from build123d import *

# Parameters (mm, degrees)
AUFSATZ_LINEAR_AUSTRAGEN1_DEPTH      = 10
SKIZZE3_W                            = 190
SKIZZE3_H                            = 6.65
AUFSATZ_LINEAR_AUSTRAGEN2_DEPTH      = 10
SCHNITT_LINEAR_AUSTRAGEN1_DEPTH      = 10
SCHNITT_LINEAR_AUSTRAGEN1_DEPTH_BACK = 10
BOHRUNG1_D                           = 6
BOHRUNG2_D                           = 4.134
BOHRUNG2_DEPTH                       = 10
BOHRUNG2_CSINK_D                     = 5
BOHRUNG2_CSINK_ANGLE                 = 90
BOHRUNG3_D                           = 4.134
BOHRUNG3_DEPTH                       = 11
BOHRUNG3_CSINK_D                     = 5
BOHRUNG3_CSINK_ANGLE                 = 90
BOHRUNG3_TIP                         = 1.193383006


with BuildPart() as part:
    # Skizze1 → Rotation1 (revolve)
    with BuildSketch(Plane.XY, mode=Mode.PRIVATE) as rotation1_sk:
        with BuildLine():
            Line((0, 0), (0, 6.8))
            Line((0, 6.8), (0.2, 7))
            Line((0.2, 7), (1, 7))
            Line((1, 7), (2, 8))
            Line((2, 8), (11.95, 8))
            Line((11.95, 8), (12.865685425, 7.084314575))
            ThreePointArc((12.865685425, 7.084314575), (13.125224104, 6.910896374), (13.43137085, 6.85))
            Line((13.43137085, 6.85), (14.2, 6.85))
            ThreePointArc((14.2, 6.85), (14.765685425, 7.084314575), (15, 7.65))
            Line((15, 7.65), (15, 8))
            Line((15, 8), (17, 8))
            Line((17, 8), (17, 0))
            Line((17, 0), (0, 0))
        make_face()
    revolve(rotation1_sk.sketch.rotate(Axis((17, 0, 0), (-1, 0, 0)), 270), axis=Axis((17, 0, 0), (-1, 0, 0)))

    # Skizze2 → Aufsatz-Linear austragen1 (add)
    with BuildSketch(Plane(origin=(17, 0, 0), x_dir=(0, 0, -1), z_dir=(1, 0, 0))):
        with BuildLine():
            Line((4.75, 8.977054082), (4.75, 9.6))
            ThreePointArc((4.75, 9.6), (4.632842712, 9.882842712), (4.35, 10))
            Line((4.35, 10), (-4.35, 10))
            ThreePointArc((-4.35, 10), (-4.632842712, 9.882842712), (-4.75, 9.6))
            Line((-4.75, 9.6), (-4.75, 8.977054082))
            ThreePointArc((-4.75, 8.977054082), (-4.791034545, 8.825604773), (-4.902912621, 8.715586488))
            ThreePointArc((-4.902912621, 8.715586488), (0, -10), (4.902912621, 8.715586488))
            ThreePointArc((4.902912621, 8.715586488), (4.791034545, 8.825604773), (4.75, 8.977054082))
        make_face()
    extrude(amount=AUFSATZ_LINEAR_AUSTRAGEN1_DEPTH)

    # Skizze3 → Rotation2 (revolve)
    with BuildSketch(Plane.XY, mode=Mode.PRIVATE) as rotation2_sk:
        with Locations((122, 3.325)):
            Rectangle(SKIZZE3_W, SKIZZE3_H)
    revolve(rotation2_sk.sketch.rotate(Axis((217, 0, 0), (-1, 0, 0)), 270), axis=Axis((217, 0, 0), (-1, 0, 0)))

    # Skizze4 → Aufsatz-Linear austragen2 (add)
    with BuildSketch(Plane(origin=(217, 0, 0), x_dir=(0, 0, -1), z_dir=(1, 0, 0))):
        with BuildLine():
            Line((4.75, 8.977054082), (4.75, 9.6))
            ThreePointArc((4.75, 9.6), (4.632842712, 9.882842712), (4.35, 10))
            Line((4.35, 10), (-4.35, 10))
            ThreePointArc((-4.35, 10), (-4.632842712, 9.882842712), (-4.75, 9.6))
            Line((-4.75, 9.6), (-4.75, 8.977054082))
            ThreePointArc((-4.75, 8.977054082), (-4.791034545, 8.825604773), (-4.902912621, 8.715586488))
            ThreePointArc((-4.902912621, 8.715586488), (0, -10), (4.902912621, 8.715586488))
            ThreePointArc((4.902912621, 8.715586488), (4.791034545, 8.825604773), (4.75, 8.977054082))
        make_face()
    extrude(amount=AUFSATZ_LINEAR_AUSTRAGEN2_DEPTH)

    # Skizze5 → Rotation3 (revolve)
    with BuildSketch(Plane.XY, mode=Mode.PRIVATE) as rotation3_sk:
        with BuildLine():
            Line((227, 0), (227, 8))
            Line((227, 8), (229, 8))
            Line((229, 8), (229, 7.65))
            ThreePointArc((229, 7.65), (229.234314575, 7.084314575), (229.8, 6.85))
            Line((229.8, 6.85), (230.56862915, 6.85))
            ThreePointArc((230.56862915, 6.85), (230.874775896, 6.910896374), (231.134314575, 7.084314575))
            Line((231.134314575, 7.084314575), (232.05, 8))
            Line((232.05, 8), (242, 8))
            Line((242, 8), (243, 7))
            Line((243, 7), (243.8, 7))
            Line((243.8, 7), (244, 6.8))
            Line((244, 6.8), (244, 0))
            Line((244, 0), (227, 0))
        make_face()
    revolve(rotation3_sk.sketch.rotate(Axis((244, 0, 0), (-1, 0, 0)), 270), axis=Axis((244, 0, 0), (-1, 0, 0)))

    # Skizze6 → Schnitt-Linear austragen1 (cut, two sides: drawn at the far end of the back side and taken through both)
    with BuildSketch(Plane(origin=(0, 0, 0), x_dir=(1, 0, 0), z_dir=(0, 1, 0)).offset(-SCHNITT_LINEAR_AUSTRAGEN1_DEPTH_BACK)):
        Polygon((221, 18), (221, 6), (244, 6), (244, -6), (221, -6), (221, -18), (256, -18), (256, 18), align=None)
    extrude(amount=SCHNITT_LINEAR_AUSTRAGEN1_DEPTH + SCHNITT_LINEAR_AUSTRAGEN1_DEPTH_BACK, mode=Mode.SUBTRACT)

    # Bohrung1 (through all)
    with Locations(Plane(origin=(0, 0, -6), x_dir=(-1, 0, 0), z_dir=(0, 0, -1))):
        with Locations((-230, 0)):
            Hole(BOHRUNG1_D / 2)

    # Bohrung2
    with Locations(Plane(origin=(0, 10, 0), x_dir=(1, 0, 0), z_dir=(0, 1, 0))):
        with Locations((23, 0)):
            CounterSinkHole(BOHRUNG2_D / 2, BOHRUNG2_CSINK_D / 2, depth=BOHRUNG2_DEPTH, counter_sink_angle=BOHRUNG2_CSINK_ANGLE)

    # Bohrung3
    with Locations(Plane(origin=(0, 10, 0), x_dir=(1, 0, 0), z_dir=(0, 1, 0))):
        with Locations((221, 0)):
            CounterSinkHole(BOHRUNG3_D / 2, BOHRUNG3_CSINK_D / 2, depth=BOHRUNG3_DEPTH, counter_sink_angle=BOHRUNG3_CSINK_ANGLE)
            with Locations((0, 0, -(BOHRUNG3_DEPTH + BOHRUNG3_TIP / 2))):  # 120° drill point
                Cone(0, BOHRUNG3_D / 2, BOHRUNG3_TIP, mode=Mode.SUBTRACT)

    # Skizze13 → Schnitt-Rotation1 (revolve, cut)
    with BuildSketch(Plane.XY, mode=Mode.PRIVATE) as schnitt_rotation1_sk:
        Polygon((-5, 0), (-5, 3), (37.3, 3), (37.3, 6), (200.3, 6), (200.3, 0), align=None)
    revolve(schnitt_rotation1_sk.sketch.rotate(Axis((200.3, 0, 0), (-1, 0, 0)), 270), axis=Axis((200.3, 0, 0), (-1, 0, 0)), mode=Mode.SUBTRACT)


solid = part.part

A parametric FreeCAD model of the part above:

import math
import FreeCAD as App
import Part
import Sketcher
Q = App.Units.Quantity


def add_polygon(sketch, points):
    """Adds a closed chain of lines whose ends are joined by coincident constraints."""
    first, n = sketch.GeometryCount, len(points)
    for a, b in zip(points, points[1:] + points[:1]):
        sketch.addGeometry(Part.LineSegment(App.Vector(*a, 0), App.Vector(*b, 0)), False)
    for i in range(n):
        sketch.addConstraint(Sketcher.Constraint("Coincident", first + i, 2, first + (i + 1) % n, 1))

doc = App.newDocument("Part")
body = doc.addObject("PartDesign::Body", "Body")

# Sketch on XY plane
sketch1 = doc.addObject("Sketcher::SketchObject", "Sketch")
body.addObject(sketch1)
sketch1.AttachmentSupport = (doc.XY_Plane, [""])
sketch1.MapMode = "FlatFace"
sketch1.addGeometry([
    Part.LineSegment(App.Vector(0, 6.8, 0), App.Vector(0, 0, 0)),  # 0
    Part.LineSegment(App.Vector(0, 0, 0), App.Vector(17, 0, 0)),  # 1
    Part.LineSegment(App.Vector(17, 0, 0), App.Vector(17, 8, 0)),  # 2
    Part.LineSegment(App.Vector(17, 8, 0), App.Vector(15, 8, 0)),  # 3
    Part.LineSegment(App.Vector(15, 8, 0), App.Vector(15, 7.65, 0)),  # 4
    Part.ArcOfCircle(Part.Circle(App.Vector(14.2, 7.65, 0), App.Vector(0, 0, 1), 0.8), math.radians(-90), math.radians(0)),  # 5
    Part.LineSegment(App.Vector(14.2, 6.85, 0), App.Vector(13.43, 6.85, 0)),  # 6
    Part.ArcOfCircle(Part.Circle(App.Vector(13.43, 7.65, 0), App.Vector(0, 0, 1), 0.8), math.radians(-135), math.radians(-90)),  # 7
    Part.LineSegment(App.Vector(12.87, 7.08, 0), App.Vector(11.95, 8, 0)),  # 8
    Part.LineSegment(App.Vector(11.95, 8, 0), App.Vector(2, 8, 0)),  # 9
    Part.LineSegment(App.Vector(2, 8, 0), App.Vector(1, 7, 0)),  # 10
    Part.LineSegment(App.Vector(1, 7, 0), App.Vector(0.2, 7, 0)),  # 11
    Part.LineSegment(App.Vector(0.2, 7, 0), App.Vector(0, 6.8, 0)),  # 12
], False)
sketch1.addConstraint([
    Sketcher.Constraint("Coincident", 0, 2, 1, 1),
    Sketcher.Constraint("Coincident", 1, 2, 2, 1),
    Sketcher.Constraint("Coincident", 2, 2, 3, 1),
    Sketcher.Constraint("Coincident", 3, 2, 4, 1),
    Sketcher.Constraint("Tangent", 4, 2, 5, 2),
    Sketcher.Constraint("Tangent", 5, 1, 6, 1),
    Sketcher.Constraint("Tangent", 6, 2, 7, 2),
    Sketcher.Constraint("Tangent", 7, 1, 8, 1),
    Sketcher.Constraint("Coincident", 8, 2, 9, 1),
    Sketcher.Constraint("Coincident", 9, 2, 10, 1),
    Sketcher.Constraint("Coincident", 10, 2, 11, 1),
    Sketcher.Constraint("Coincident", 11, 2, 12, 1),
    Sketcher.Constraint("Coincident", 12, 2, 0, 1),
    Sketcher.Constraint("Vertical", 0),
    Sketcher.Constraint("Horizontal", 1),
    Sketcher.Constraint("Vertical", 2),
    Sketcher.Constraint("Horizontal", 3),
    Sketcher.Constraint("Vertical", 4),
    Sketcher.Constraint("Horizontal", 6),
    Sketcher.Constraint("Horizontal", 9),
    Sketcher.Constraint("Horizontal", 11),
    Sketcher.Constraint("Coincident", 0, 2, -1, 1),
    Sketcher.Constraint("Equal", 5, 7),
    Sketcher.Constraint("Perpendicular", 8, 10),
    Sketcher.Constraint("Parallel", 10, 12),
    Sketcher.Constraint("Horizontal", 3, 2, 8, 2),
    Sketcher.Constraint("Radius", 5, 0.8),
    Sketcher.Constraint("DistanceX", 1, 1, 1, 2, 17.0),
    Sketcher.Constraint("DistanceX", 3, 2, 3, 1, 2.0),
    Sketcher.Constraint("DistanceY", 2, 1, 2, 2, 8.0),
    Sketcher.Constraint("Angle", 8, Q("135 deg")),
    Sketcher.Constraint("DistanceX", 11, 2, 11, 1, 0.8),
    Sketcher.Constraint("DistanceY", 0, 2, 0, 1, 6.8),
    Sketcher.Constraint("DistanceX", -1, 1, 10, 2, 1.0),
    Sketcher.Constraint("DistanceX", 9, 2, 9, 1, 9.95),
    Sketcher.Constraint("DistanceY", 4, 2, 4, 1, 0.35),
])
revolution = doc.addObject("PartDesign::Revolution", "Revolution")
body.addObject(revolution)
revolution.Profile = sketch1
revolution.ReferenceAxis = (sketch1, ["H_Axis"])
revolution.Angle = 360

# Sketch on YZ plane
sketch2 = doc.addObject("Sketcher::SketchObject", "Sketch001")
body.addObject(sketch2)
sketch2.AttachmentSupport = (doc.YZ_Plane, [""])
sketch2.MapMode = "FlatFace"
sketch2.AttachmentOffset = App.Placement(App.Vector(0, 0, 17), App.Rotation())
sketch2.addGeometry([
    Part.LineSegment(App.Vector(8.98, -4.75, 0), App.Vector(9.6, -4.75, 0)),  # 0
    Part.ArcOfCircle(Part.Circle(App.Vector(9.6, -4.35, 0), App.Vector(0, 0, 1), 0.4), math.radians(-90), math.radians(0)),  # 1
    Part.LineSegment(App.Vector(10, -4.35, 0), App.Vector(10, 4.35, 0)),  # 2
    Part.ArcOfCircle(Part.Circle(App.Vector(9.6, 4.35, 0), App.Vector(0, 0, 1), 0.4), math.radians(0), math.radians(90)),  # 3
    Part.LineSegment(App.Vector(9.6, 4.75, 0), App.Vector(8.98, 4.75, 0)),  # 4
    Part.ArcOfCircle(Part.Circle(App.Vector(8.98, 5.05, 0), App.Vector(0, 0, 1), 0.3), math.radians(-151), math.radians(-90)),  # 5
    Part.ArcOfCircle(Part.Circle(App.Vector(0, 0, 0), App.Vector(0, 0, 1), 10), math.radians(29), math.radians(331)),  # 6
    Part.ArcOfCircle(Part.Circle(App.Vector(8.98, -5.05, 0), App.Vector(0, 0, 1), 0.3), math.radians(90), math.radians(151)),  # 7
], False)
sketch2.addConstraint([
    Sketcher.Constraint("Tangent", 0, 2, 1, 1),
    Sketcher.Constraint("Tangent", 1, 2, 2, 1),
    Sketcher.Constraint("Tangent", 2, 2, 3, 1),
    Sketcher.Constraint("Tangent", 3, 2, 4, 1),
    Sketcher.Constraint("Tangent", 4, 2, 5, 2),
    Sketcher.Constraint("Tangent", 5, 1, 6, 1),
    Sketcher.Constraint("Tangent", 6, 2, 7, 2),
    Sketcher.Constraint("Tangent", 7, 1, 0, 1),
    Sketcher.Constraint("Horizontal", 0),
    Sketcher.Constraint("Vertical", 2),
    Sketcher.Constraint("Horizontal", 4),
    Sketcher.Constraint("Coincident", 6, 3, -1, 1),
    Sketcher.Constraint("Equal", 1, 3),
    Sketcher.Constraint("Equal", 5, 7),
    Sketcher.Constraint("Vertical", 5, 3, 7, 3),
    Sketcher.Constraint("Radius", 6, 10.0),
    Sketcher.Constraint("Radius", 1, 0.4),
    Sketcher.Constraint("Radius", 5, 0.3),
    Sketcher.Constraint("DistanceY", 2, 1, 2, 2, 8.7),
    Sketcher.Constraint("DistanceX", -1, 1, 1, 2, 10.0),
])
pad1 = doc.addObject("PartDesign::Pad", "Pad")
body.addObject(pad1)
pad1.Profile = sketch2
pad1.Length = 10

# Sketch on XY plane
sketch3 = doc.addObject("Sketcher::SketchObject", "Sketch002")
body.addObject(sketch3)
sketch3.AttachmentSupport = (doc.XY_Plane, [""])
sketch3.MapMode = "FlatFace"
add_polygon(sketch3, [(27, 7), (27, 0), (217, 0), (217, 7)])  # lines 0-3
sketch3.addConstraint([
    Sketcher.Constraint("Vertical", 0),
    Sketcher.Constraint("Horizontal", 1),
    Sketcher.Constraint("Vertical", 2),
    Sketcher.Constraint("Horizontal", 3),
    Sketcher.Constraint("PointOnObject", 0, 2, -1),
    Sketcher.Constraint("DistanceX", 1, 1, 1, 2, 190.0),
    Sketcher.Constraint("DistanceX", -1, 1, 0, 2, 27.0),
    Sketcher.Constraint("DistanceY", 0, 2, 0, 1, 6.65),
])
revolution2 = doc.addObject("PartDesign::Revolution", "Revolution001")
body.addObject(revolution2)
revolution2.Profile = sketch3
revolution2.ReferenceAxis = (sketch3, ["H_Axis"])
revolution2.Angle = 360

# Sketch on YZ plane
sketch4 = doc.addObject("Sketcher::SketchObject", "Sketch003")
body.addObject(sketch4)
sketch4.AttachmentSupport = (doc.YZ_Plane, [""])
sketch4.MapMode = "FlatFace"
sketch4.AttachmentOffset = App.Placement(App.Vector(0, 0, 217), App.Rotation())
sketch4.addGeometry([
    Part.LineSegment(App.Vector(8.98, -4.75, 0), App.Vector(9.6, -4.75, 0)),  # 0
    Part.ArcOfCircle(Part.Circle(App.Vector(9.6, -4.35, 0), App.Vector(0, 0, 1), 0.4), math.radians(-90), math.radians(0)),  # 1
    Part.LineSegment(App.Vector(10, -4.35, 0), App.Vector(10, 4.35, 0)),  # 2
    Part.ArcOfCircle(Part.Circle(App.Vector(9.6, 4.35, 0), App.Vector(0, 0, 1), 0.4), math.radians(0), math.radians(90)),  # 3
    Part.LineSegment(App.Vector(9.6, 4.75, 0), App.Vector(8.98, 4.75, 0)),  # 4
    Part.ArcOfCircle(Part.Circle(App.Vector(8.98, 5.05, 0), App.Vector(0, 0, 1), 0.3), math.radians(-151), math.radians(-90)),  # 5
    Part.ArcOfCircle(Part.Circle(App.Vector(0, 0, 0), App.Vector(0, 0, 1), 10), math.radians(29), math.radians(331)),  # 6
    Part.ArcOfCircle(Part.Circle(App.Vector(8.98, -5.05, 0), App.Vector(0, 0, 1), 0.3), math.radians(90), math.radians(151)),  # 7
], False)
sketch4.addConstraint([
    Sketcher.Constraint("Tangent", 0, 2, 1, 1),
    Sketcher.Constraint("Tangent", 1, 2, 2, 1),
    Sketcher.Constraint("Tangent", 2, 2, 3, 1),
    Sketcher.Constraint("Tangent", 3, 2, 4, 1),
    Sketcher.Constraint("Tangent", 4, 2, 5, 2),
    Sketcher.Constraint("Tangent", 5, 1, 6, 1),
    Sketcher.Constraint("Tangent", 6, 2, 7, 2),
    Sketcher.Constraint("Tangent", 7, 1, 0, 1),
    Sketcher.Constraint("Horizontal", 0),
    Sketcher.Constraint("Vertical", 2),
    Sketcher.Constraint("Horizontal", 4),
    Sketcher.Constraint("Coincident", 6, 3, -1, 1),
    Sketcher.Constraint("Equal", 1, 3),
    Sketcher.Constraint("Equal", 5, 7),
    Sketcher.Constraint("Vertical", 5, 3, 7, 3),
    Sketcher.Constraint("Radius", 6, 10.0),
    Sketcher.Constraint("Radius", 1, 0.4),
    Sketcher.Constraint("Radius", 5, 0.3),
    Sketcher.Constraint("DistanceY", 2, 1, 2, 2, 8.7),
    Sketcher.Constraint("DistanceX", -1, 1, 1, 2, 10.0),
])
pad2 = doc.addObject("PartDesign::Pad", "Pad001")
body.addObject(pad2)
pad2.Profile = sketch4
pad2.Length = 10

# Sketch on XY plane
sketch5 = doc.addObject("Sketcher::SketchObject", "Sketch004")
body.addObject(sketch5)
sketch5.AttachmentSupport = (doc.XY_Plane, [""])
sketch5.MapMode = "FlatFace"
sketch5.addGeometry([
    Part.LineSegment(App.Vector(227, 8, 0), App.Vector(227, 0, 0)),  # 0
    Part.LineSegment(App.Vector(227, 0, 0), App.Vector(244, 0, 0)),  # 1
    Part.LineSegment(App.Vector(244, 0, 0), App.Vector(244, 6.8, 0)),  # 2
    Part.LineSegment(App.Vector(244, 6.8, 0), App.Vector(243.8, 7, 0)),  # 3
    Part.LineSegment(App.Vector(243.8, 7, 0), App.Vector(243, 7, 0)),  # 4
    Part.LineSegment(App.Vector(243, 7, 0), App.Vector(242, 8, 0)),  # 5
    Part.LineSegment(App.Vector(242, 8, 0), App.Vector(232.05, 8, 0)),  # 6
    Part.LineSegment(App.Vector(232.05, 8, 0), App.Vector(231.13, 7.08, 0)),  # 7
    Part.ArcOfCircle(Part.Circle(App.Vector(230.57, 7.65, 0), App.Vector(0, 0, 1), 0.8), math.radians(-90), math.radians(-45)),  # 8
    Part.LineSegment(App.Vector(230.57, 6.85, 0), App.Vector(229.8, 6.85, 0)),  # 9
    Part.ArcOfCircle(Part.Circle(App.Vector(229.8, 7.65, 0), App.Vector(0, 0, 1), 0.8), math.radians(180), math.radians(270)),  # 10
    Part.LineSegment(App.Vector(229, 7.65, 0), App.Vector(229, 8, 0)),  # 11
    Part.LineSegment(App.Vector(229, 8, 0), App.Vector(227, 8, 0)),  # 12
], False)
sketch5.addConstraint([
    Sketcher.Constraint("Coincident", 0, 2, 1, 1),
    Sketcher.Constraint("Coincident", 1, 2, 2, 1),
    Sketcher.Constraint("Coincident", 2, 2, 3, 1),
    Sketcher.Constraint("Coincident", 3, 2, 4, 1),
    Sketcher.Constraint("Coincident", 4, 2, 5, 1),
    Sketcher.Constraint("Coincident", 5, 2, 6, 1),
    Sketcher.Constraint("Coincident", 6, 2, 7, 1),
    Sketcher.Constraint("Tangent", 7, 2, 8, 2),
    Sketcher.Constraint("Tangent", 8, 1, 9, 1),
    Sketcher.Constraint("Tangent", 9, 2, 10, 2),
    Sketcher.Constraint("Tangent", 10, 1, 11, 1),
    Sketcher.Constraint("Coincident", 11, 2, 12, 1),
    Sketcher.Constraint("Coincident", 12, 2, 0, 1),
    Sketcher.Constraint("Vertical", 0),
    Sketcher.Constraint("Horizontal", 1),
    Sketcher.Constraint("Vertical", 2),
    Sketcher.Constraint("Horizontal", 4),
    Sketcher.Constraint("Horizontal", 6),
    Sketcher.Constraint("Horizontal", 9),
    Sketcher.Constraint("Vertical", 11),
    Sketcher.Constraint("Horizontal", 12),
    Sketcher.Constraint("Equal", 8, 10),
    Sketcher.Constraint("PointOnObject", 0, 2, -1),
    Sketcher.Constraint("Parallel", 3, 5),
    Sketcher.Constraint("Perpendicular", 5, 7),
    Sketcher.Constraint("Horizontal", 6, 2, 11, 2),
    Sketcher.Constraint("Radius", 8, 0.8),
    Sketcher.Constraint("DistanceX", 1, 1, 1, 2, 17.0),
    Sketcher.Constraint("DistanceX", 12, 2, 12, 1, 2.0),
    Sketcher.Constraint("DistanceY", 0, 2, 0, 1, 8.0),
    Sketcher.Constraint("Angle", 3, Q("135 deg")),
    Sketcher.Constraint("DistanceX", 4, 2, 4, 1, 0.8),
    Sketcher.Constraint("DistanceY", 2, 1, 2, 2, 6.8),
    Sketcher.Constraint("DistanceX", -1, 1, 0, 2, 227.0),
    Sketcher.Constraint("DistanceY", -1, 1, 3, 2, 7.0),
    Sketcher.Constraint("DistanceX", 6, 2, 6, 1, 9.95),
    Sketcher.Constraint("DistanceY", 11, 1, 11, 2, 0.35),
])
revolution3 = doc.addObject("PartDesign::Revolution", "Revolution002")
body.addObject(revolution3)
revolution3.Profile = sketch5
revolution3.ReferenceAxis = (sketch5, ["H_Axis"])
revolution3.Angle = 360

# Sketch on XZ plane
sketch6 = doc.addObject("Sketcher::SketchObject", "Sketch005")
body.addObject(sketch6)
sketch6.AttachmentSupport = (doc.XZ_Plane, [""])
sketch6.MapMode = "FlatFace"
add_polygon(sketch6, [(221, -18), (221, -6), (244, -6), (244, 6), (221, 6), (221, 18), (256, 18), (256, -18)])  # lines 0-7
sketch6.addConstraint([
    Sketcher.Constraint("Vertical", 0),
    Sketcher.Constraint("Horizontal", 1),
    Sketcher.Constraint("Vertical", 2),
    Sketcher.Constraint("Horizontal", 3),
    Sketcher.Constraint("Vertical", 4),
    Sketcher.Constraint("Horizontal", 5),
    Sketcher.Constraint("Vertical", 6),
    Sketcher.Constraint("Horizontal", 7),
    Sketcher.Constraint("Symmetric", 0, 2, 3, 2, -1),
    Sketcher.Constraint("Equal", 0, 2),
    Sketcher.Constraint("Equal", 2, 4),
    Sketcher.Constraint("DistanceX", 1, 1, 1, 2, 23.0),
    Sketcher.Constraint("DistanceX", 5, 1, 5, 2, 35.0),
    Sketcher.Constraint("DistanceY", 0, 1, 0, 2, 12.0),
    Sketcher.Constraint("DistanceX", -1, 1, 0, 2, 221.0),
])
pocket1 = doc.addObject("PartDesign::Pocket", "Pocket")
body.addObject(pocket1)
pocket1.Profile = sketch6
pocket1.Type = "ThroughAll"
pocket1.Midplane = True

# Sketch on XY plane
sketch7 = doc.addObject("Sketcher::SketchObject", "Sketch006")
body.addObject(sketch7)
sketch7.AttachmentSupport = (doc.XY_Plane, [""])
sketch7.MapMode = "FlatFace"
sketch7.AttachmentOffset = App.Placement(App.Vector(0, 0, -6), App.Rotation())
sketch7.addGeometry(Part.Circle(App.Vector(230, 0, 0), App.Vector(0, 0, 1), 3), False)
sketch7.addConstraint([
    Sketcher.Constraint("PointOnObject", 0, 3, -1),
    Sketcher.Constraint("Diameter", 0, 6.0),
    Sketcher.Constraint("DistanceX", -1, 1, 0, 3, 230.0),
])
doc.recompute()
hole = doc.addObject("PartDesign::Hole", "Hole")
body.addObject(hole)
hole.Profile = sketch7
hole.ThreadType = "None"
hole.Diameter = 6
hole.DepthType = "ThroughAll"
hole.Reversed = True

# Sketch on XZ plane
sketch8 = doc.addObject("Sketcher::SketchObject", "Sketch007")
body.addObject(sketch8)
sketch8.AttachmentSupport = (doc.XZ_Plane, [""])
sketch8.MapMode = "FlatFace"
sketch8.AttachmentOffset = App.Placement(App.Vector(0, 0, -10), App.Rotation())
sketch8.addGeometry(Part.Circle(App.Vector(23, 0, 0), App.Vector(0, 0, 1), 2.1), False)
sketch8.addConstraint([
    Sketcher.Constraint("PointOnObject", 0, 3, -1),
    Sketcher.Constraint("Diameter", 0, 4.134),
    Sketcher.Constraint("DistanceX", -1, 1, 0, 3, 23.0),
])
doc.recompute()
hole2 = doc.addObject("PartDesign::Hole", "Hole001")
body.addObject(hole2)
hole2.Profile = sketch8
hole2.ThreadType = "None"
hole2.Diameter = 4.134
hole2.DepthType = "Dimension"
hole2.Depth = 10
hole2.DrillPoint = "Flat"
hole2.HoleCutType = "Countersink"
hole2.HoleCutDiameter = 5
hole2.HoleCutCountersinkAngle = 90
hole2.Reversed = True

# Sketch on XZ plane
sketch9 = doc.addObject("Sketcher::SketchObject", "Sketch008")
body.addObject(sketch9)
sketch9.AttachmentSupport = (doc.XZ_Plane, [""])
sketch9.MapMode = "FlatFace"
sketch9.AttachmentOffset = App.Placement(App.Vector(0, 0, -10), App.Rotation())
sketch9.addGeometry(Part.Circle(App.Vector(221, 0, 0), App.Vector(0, 0, 1), 2.1), False)
sketch9.addConstraint([
    Sketcher.Constraint("PointOnObject", 0, 3, -1),
    Sketcher.Constraint("Diameter", 0, 4.134),
    Sketcher.Constraint("DistanceX", -1, 1, 0, 3, 221.0),
])
doc.recompute()
hole3 = doc.addObject("PartDesign::Hole", "Hole002")
body.addObject(hole3)
hole3.Profile = sketch9
hole3.ThreadType = "None"
hole3.Diameter = 4.134
hole3.DepthType = "Dimension"
hole3.Depth = 11
hole3.DrillPoint = "Angled"
hole3.DrillPointAngle = 120
hole3.HoleCutType = "Countersink"
hole3.HoleCutDiameter = 5
hole3.HoleCutCountersinkAngle = 90
hole3.Reversed = True

# Sketch on XY plane
sketch10 = doc.addObject("Sketcher::SketchObject", "Sketch009")
body.addObject(sketch10)
sketch10.AttachmentSupport = (doc.XY_Plane, [""])
sketch10.MapMode = "FlatFace"
add_polygon(sketch10, [(-5, 3), (-5, 0), (200.3, 0), (200.3, 6), (37.3, 6), (37.3, 3)])  # lines 0-5
sketch10.addConstraint([
    Sketcher.Constraint("Vertical", 0),
    Sketcher.Constraint("Horizontal", 1),
    Sketcher.Constraint("Vertical", 2),
    Sketcher.Constraint("Horizontal", 3),
    Sketcher.Constraint("Vertical", 4),
    Sketcher.Constraint("Horizontal", 5),
    Sketcher.Constraint("PointOnObject", 0, 2, -1),
    Sketcher.Constraint("Equal", 0, 4),
    Sketcher.Constraint("DistanceX", 3, 2, 3, 1, 163.0),
    Sketcher.Constraint("DistanceY", 0, 2, 0, 1, 3.0),
    Sketcher.Constraint("DistanceX", 1, 1, 1, 2, 205.3),
    Sketcher.Constraint("DistanceX", 0, 2, -1, 1, 5.0),
])
groove = doc.addObject("PartDesign::Groove", "Groove")
body.addObject(groove)
groove.Profile = sketch10
groove.ReferenceAxis = (sketch10, ["H_Axis"])
groove.Angle = 360

doc.recompute()
